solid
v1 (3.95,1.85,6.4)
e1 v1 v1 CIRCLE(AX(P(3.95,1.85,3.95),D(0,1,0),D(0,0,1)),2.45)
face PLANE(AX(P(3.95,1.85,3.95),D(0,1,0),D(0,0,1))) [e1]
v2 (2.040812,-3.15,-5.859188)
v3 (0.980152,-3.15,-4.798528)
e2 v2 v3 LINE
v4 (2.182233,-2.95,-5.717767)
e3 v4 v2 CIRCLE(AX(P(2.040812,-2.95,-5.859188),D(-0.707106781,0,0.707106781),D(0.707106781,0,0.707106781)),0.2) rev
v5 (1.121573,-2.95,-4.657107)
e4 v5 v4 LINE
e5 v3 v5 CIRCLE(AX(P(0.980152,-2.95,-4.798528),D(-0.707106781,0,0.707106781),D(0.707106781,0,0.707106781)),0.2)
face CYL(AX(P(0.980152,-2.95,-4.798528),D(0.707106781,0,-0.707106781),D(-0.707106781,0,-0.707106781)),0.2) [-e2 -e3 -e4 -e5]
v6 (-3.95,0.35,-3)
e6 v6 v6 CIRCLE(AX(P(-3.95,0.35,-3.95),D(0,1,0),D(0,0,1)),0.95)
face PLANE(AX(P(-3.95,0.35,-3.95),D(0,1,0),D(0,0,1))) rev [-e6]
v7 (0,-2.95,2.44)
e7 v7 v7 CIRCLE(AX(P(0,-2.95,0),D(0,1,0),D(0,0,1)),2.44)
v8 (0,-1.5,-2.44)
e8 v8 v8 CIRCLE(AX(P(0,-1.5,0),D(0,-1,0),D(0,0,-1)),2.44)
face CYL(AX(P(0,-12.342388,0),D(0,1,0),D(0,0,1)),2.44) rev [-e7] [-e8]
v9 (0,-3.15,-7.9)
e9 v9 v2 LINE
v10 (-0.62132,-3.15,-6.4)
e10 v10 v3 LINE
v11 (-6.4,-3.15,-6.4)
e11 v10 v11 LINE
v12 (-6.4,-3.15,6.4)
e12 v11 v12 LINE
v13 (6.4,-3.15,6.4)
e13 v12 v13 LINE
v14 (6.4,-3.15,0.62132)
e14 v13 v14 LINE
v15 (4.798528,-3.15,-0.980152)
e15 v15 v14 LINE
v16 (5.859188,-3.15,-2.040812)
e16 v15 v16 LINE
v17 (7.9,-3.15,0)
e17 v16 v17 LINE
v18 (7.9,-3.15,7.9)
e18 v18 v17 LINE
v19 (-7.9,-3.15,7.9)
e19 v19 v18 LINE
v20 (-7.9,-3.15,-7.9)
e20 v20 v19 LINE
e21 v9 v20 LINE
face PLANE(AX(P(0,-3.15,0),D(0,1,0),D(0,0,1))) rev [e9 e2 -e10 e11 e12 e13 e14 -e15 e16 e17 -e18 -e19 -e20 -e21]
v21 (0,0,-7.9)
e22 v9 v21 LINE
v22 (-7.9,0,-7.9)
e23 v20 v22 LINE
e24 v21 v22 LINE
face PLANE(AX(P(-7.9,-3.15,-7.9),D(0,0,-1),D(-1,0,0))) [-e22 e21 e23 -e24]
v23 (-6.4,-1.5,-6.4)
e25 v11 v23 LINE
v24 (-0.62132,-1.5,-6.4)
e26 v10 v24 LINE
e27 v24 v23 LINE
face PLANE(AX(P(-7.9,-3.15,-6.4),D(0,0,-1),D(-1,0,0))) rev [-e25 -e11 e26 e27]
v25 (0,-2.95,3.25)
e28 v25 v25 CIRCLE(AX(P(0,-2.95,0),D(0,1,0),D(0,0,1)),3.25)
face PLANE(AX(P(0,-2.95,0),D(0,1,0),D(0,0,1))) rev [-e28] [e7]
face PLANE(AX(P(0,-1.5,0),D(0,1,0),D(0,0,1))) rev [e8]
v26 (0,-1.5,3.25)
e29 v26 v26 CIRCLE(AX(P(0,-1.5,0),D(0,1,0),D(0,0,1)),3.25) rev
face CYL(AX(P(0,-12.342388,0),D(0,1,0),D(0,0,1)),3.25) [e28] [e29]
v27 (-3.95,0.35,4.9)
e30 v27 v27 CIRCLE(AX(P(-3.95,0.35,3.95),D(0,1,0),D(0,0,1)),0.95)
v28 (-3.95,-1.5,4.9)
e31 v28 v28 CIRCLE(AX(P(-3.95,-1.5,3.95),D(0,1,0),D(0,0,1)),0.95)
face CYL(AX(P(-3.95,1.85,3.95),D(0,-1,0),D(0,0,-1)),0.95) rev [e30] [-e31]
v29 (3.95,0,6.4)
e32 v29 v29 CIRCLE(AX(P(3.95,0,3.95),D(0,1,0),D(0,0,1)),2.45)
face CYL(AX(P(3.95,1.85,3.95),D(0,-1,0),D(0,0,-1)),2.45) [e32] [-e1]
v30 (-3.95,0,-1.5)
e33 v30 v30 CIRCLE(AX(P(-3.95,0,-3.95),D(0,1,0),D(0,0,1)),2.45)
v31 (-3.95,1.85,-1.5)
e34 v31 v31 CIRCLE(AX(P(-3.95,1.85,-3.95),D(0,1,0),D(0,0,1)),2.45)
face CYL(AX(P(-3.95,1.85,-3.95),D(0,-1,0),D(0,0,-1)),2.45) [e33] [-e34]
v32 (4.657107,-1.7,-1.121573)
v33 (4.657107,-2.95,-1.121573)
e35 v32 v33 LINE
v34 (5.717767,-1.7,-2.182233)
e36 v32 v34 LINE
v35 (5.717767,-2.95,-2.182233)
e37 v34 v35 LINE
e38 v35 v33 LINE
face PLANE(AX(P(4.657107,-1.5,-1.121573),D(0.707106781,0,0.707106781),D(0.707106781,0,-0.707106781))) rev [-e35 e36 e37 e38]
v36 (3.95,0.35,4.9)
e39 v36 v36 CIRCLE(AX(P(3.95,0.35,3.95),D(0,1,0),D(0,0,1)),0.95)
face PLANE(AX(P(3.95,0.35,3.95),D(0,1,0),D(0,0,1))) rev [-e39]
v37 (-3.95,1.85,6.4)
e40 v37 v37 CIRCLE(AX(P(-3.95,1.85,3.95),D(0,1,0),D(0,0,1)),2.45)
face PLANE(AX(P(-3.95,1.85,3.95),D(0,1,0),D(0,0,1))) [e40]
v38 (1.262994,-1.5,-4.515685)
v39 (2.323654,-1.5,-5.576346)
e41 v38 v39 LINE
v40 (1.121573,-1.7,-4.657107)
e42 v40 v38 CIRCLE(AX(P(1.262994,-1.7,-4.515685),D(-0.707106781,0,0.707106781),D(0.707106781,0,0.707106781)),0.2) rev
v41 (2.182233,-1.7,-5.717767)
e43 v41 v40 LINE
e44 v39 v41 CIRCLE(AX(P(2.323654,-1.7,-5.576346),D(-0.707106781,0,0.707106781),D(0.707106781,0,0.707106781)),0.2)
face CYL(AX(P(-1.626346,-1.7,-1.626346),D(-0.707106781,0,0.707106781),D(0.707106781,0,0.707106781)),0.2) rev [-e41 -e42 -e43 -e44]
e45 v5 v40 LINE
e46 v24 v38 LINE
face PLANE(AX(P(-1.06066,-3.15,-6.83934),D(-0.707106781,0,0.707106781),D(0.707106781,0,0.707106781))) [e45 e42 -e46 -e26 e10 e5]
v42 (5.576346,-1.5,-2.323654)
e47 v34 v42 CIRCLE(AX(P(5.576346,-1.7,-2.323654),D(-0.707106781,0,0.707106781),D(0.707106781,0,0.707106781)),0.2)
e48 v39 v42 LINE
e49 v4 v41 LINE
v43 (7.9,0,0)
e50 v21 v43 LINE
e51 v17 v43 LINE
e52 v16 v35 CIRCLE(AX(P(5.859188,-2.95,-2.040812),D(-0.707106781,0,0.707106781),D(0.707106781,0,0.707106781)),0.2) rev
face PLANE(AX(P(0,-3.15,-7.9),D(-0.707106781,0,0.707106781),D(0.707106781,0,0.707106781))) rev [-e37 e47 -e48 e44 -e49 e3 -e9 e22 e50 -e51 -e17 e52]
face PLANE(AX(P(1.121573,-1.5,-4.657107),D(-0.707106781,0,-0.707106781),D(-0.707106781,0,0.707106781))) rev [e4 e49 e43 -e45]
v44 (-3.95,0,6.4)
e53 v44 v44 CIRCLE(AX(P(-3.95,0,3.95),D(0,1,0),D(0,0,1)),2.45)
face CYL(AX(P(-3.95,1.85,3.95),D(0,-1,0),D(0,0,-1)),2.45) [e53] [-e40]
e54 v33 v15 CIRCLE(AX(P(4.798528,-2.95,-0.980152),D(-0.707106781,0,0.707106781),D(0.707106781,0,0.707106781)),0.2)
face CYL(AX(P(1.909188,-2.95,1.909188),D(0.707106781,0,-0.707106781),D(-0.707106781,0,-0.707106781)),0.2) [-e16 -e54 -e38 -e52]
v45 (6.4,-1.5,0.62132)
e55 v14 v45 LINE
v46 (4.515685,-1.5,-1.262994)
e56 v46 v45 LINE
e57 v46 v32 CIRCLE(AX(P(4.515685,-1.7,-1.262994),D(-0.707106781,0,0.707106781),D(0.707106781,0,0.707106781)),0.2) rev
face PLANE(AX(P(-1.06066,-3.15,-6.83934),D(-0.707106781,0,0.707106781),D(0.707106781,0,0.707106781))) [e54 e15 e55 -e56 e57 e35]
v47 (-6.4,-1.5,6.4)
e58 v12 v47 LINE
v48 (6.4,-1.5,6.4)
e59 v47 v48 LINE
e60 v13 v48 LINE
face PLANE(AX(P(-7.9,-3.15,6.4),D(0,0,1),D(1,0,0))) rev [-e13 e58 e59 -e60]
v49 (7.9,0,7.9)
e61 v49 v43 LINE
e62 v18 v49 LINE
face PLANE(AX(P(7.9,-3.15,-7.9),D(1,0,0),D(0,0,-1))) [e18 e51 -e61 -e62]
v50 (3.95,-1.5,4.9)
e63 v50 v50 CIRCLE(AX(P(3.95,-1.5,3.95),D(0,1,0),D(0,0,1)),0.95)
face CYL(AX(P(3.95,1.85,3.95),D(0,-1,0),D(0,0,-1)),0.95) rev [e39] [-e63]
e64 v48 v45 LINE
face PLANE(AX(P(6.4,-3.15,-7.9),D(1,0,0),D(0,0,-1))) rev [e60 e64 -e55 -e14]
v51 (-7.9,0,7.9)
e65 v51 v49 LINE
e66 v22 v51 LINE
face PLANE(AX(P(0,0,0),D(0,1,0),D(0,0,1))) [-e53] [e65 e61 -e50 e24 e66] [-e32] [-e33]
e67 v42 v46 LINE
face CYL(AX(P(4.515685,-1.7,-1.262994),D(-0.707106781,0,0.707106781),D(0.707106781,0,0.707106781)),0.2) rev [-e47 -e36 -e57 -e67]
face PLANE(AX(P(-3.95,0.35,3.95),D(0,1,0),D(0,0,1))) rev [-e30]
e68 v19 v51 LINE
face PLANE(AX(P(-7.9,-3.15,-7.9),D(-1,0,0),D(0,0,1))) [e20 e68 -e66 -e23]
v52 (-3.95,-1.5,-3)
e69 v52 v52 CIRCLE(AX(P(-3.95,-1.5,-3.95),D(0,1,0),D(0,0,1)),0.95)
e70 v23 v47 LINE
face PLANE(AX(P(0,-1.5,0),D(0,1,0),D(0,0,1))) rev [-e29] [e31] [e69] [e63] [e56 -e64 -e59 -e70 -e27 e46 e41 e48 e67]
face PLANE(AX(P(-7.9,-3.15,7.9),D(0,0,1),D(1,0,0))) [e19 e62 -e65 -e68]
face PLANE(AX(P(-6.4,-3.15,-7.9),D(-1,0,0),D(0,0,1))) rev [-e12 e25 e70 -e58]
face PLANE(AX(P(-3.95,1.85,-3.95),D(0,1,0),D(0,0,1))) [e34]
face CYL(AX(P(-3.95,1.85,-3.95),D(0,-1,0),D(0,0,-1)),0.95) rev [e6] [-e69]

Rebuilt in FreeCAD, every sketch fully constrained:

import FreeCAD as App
import Part
import Sketcher


def edges_at(feature, points):
    """Names of the edges that pass closest to the given points."""
    edges = feature.Shape.Edges
    near = lambda p: min(range(len(edges)), key=lambda i: edges[i].distToShape(Part.Vertex(*p))[0])
    return sorted({f"Edge{near(p) + 1}" for p in points})


def faces_at(feature, points):
    """Names of the faces that lie closest to the given points."""
    faces = feature.Shape.Faces
    near = lambda p: min(range(len(faces)), key=lambda i: faces[i].distToShape(Part.Vertex(*p))[0])
    return sorted({f"Face{near(p) + 1}" for p in points})

doc = App.newDocument("Part")
params = doc.addObject("Spreadsheet::Sheet", "Params")
for row, (alias, value) in enumerate([
    ("sketch1_width", "15.8 mm"),
    ("pad1_length", "3.15 mm"),
    ("sketch2_diameter", "4.9 mm"),
    ("pad2_length", "1.85 mm"),
    ("sketch3_width", "7.9 mm"),
    ("thickness_wall", "1.5 mm"),
    ("sketch4_width", "5 mm"),
    ("sketch4_height", "1.65 mm"),
    ("pocket2_length", "1.5 mm"),
    ("fillet_radius", "0.2 mm"),
    ("sketch5_diameter", "6.5 mm"),
    ("sketch5_diameter2", "4.88 mm"),
    ("pad3_length", "1.45 mm"),
], start=1):
    params.set(f"A{row}", alias)
    params.set(f"B{row}", "=" + value)
    params.setAlias(f"B{row}", alias)

body = doc.addObject("PartDesign::Body", "Body")

sketch1 = body.newObject("Sketcher::SketchObject", "Sketch")
sketch1.AttachmentSupport = (doc.getObject("XZ_Plane"), [""])
sketch1.MapMode = "FlatFace"
sketch1.addGeometry([
    Part.LineSegment(App.Vector(-8, -8, 0), App.Vector(-8, 8, 0)),
    Part.LineSegment(App.Vector(-8, 8, 0), App.Vector(8, 8, 0)),
    Part.LineSegment(App.Vector(8, 8, 0), App.Vector(8, -8, 0)),
    Part.LineSegment(App.Vector(8, -8, 0), App.Vector(-8, -8, 0)),
], False)
sketch1.addConstraint([
    Sketcher.Constraint("Coincident", 0, 2, 1, 1),
    Sketcher.Constraint("Coincident", 1, 2, 2, 1),
    Sketcher.Constraint("Coincident", 2, 2, 3, 1),
    Sketcher.Constraint("Coincident", 3, 2, 0, 1),
    Sketcher.Constraint("Vertical", 0),
    Sketcher.Constraint("Horizontal", 1),
    Sketcher.Constraint("Vertical", 2),
    Sketcher.Constraint("Horizontal", 3),
    Sketcher.Constraint("Symmetric", 0, 2, 2, 2, -1, 1),
    Sketcher.Constraint("Equal", 3, 0),
    Sketcher.Constraint("DistanceX", 1, 1, 1, 2, 15.8),
])
sketch1.setExpression("Constraints[10]", "Params.sketch1_width")
pad1 = body.newObject("PartDesign::Pad", "Pad")
pad1.Profile = sketch1
pad1.setExpression("Length", "Params.pad1_length")

sketch2 = body.newObject("Sketcher::SketchObject", "Sketch001")
sketch2.AttachmentSupport = (doc.getObject("XZ_Plane"), [""])
sketch2.MapMode = "FlatFace"
sketch2.addGeometry([
    Part.Circle(App.Vector(-4, -4, 0), App.Vector(0, 0, 1), 2.5),
    Part.Circle(App.Vector(-4, 4, 0), App.Vector(0, 0, 1), 2.5),
    Part.Circle(App.Vector(4, 4, 0), App.Vector(0, 0, 1), 2.5),
], False)
sketch2.addConstraint([
    Sketcher.Constraint("Equal", 0, 1),
    Sketcher.Constraint("Equal", 1, 2),
    Sketcher.Constraint("Symmetric", 0, 3, 2, 3, -1, 1),
    Sketcher.Constraint("Symmetric", 1, 3, 2, 3, -2),
    Sketcher.Constraint("Diameter", 0, 4.9),
    Sketcher.Constraint("DistanceY", 0, 3, 1, 3, 7.9),
    Sketcher.Constraint("DistanceX", 1, 3, 2, 3, 7.9),
])
sketch2.setExpression("Constraints[4]", "Params.sketch2_diameter")
pad2 = body.newObject("PartDesign::Pad", "Pad001")
pad2.Profile = sketch2
pad2.setExpression("Length", "Params.pad2_length")
pad2.Reversed = True

sketch3 = body.newObject("Sketcher::SketchObject", "Sketch002")
sketch3.AttachmentSupport = (doc.getObject("XZ_Plane"), [""])
sketch3.MapMode = "FlatFace"
sketch3.addGeometry([
    Part.LineSegment(App.Vector(0, -8, 0), App.Vector(8, 0, 0)),
    Part.LineSegment(App.Vector(8, 0, 0), App.Vector(8, -8, 0)),
    Part.LineSegment(App.Vector(8, -8, 0), App.Vector(0, -8, 0)),
], False)
sketch3.addConstraint([
    Sketcher.Constraint("Coincident", 0, 2, 1, 1),
    Sketcher.Constraint("Coincident", 1, 2, 2, 1),
    Sketcher.Constraint("Coincident", 2, 2, 0, 1),
    Sketcher.Constraint("Vertical", 1),
    Sketcher.Constraint("Horizontal", 2),
    Sketcher.Constraint("PointOnObject", 0, 2, -1),
    Sketcher.Constraint("PointOnObject", 2, 2, -2),
    Sketcher.Constraint("Equal", 2, 1),
    Sketcher.Constraint("DistanceX", 2, 2, 2, 1, 7.9),
])
sketch3.setExpression("Constraints[8]", "Params.sketch3_width")
pocket1 = body.newObject("PartDesign::Pocket", "Pocket")
pocket1.Profile = sketch3
pocket1.Type = "ThroughAll"
pocket1.Midplane = True
doc.recompute()

thickness = body.newObject("PartDesign::Thickness", "Thickness")
thickness.Base = (pocket1, faces_at(pocket1, [(0, -3.15, 0)]))
thickness.setExpression("Value", "Params.thickness_wall")
thickness.Reversed = True
thickness.Join = "Intersection"

sketch4 = body.newObject("Sketcher::SketchObject", "Sketch003")
sketch4.Placement = App.Placement(App.Vector(3.95, 0, -3.95), App.Rotation(App.Vector(-0.707106781, 0, -0.707106781), App.Vector(0, 0.999999999, 0), App.Vector(0.707106781, 0, -0.707106781), "ZXY"))
sketch4.addGeometry([
    Part.LineSegment(App.Vector(-2.5, -1.5, 0), App.Vector(-2.5, -3.1, 0)),
    Part.LineSegment(App.Vector(-2.5, -3.1, 0), App.Vector(2.5, -3.1, 0)),
    Part.LineSegment(App.Vector(2.5, -3.1, 0), App.Vector(2.5, -1.5, 0)),
    Part.LineSegment(App.Vector(2.5, -1.5, 0), App.Vector(-2.5, -1.5, 0)),
], False)
sketch4.addConstraint([
    Sketcher.Constraint("Coincident", 0, 2, 1, 1),
    Sketcher.Constraint("Coincident", 1, 2, 2, 1),
    Sketcher.Constraint("Coincident", 2, 2, 3, 1),
    Sketcher.Constraint("Coincident", 3, 2, 0, 1),
    Sketcher.Constraint("Vertical", 0),
    Sketcher.Constraint("Horizontal", 1),
    Sketcher.Constraint("Vertical", 2),
    Sketcher.Constraint("Horizontal", 3),
    Sketcher.Constraint("DistanceX", 1, 1, 1, 2, 5.0),
    Sketcher.Constraint("DistanceY", 0, 2, 0, 1, 1.65),
    Sketcher.Constraint("DistanceX", 0, 2, -1, 1, 2.5),
    Sketcher.Constraint("DistanceY", 2, 2, -1, 1, 1.5),
])
sketch4.setExpression("Constraints[8]", "Params.sketch4_width")
sketch4.setExpression("Constraints[9]", "Params.sketch4_height")
pocket2 = body.newObject("PartDesign::Pocket", "Pocket001")
pocket2.Profile = sketch4
pocket2.setExpression("Length", "Params.pocket2_length")
doc.recompute()

fillet = body.newObject("PartDesign::Fillet", "Fillet")
fillet.Base = (pocket2, edges_at(pocket2, [
    (5.187, -3.15, -1.652),
    (5.187, -1.5, -1.652),
    (1.652, -1.5, -5.187),
    (1.652, -3.15, -5.187),
]))
fillet.setExpression("Radius", "Params.fillet_radius")

sketch5 = body.newObject("Sketcher::SketchObject", "Sketch004")
sketch5.AttachmentSupport = (doc.getObject("XZ_Plane"), [""])
sketch5.MapMode = "FlatFace"
sketch5.AttachmentOffset = App.Placement(App.Vector(0, 0, 1.5), App.Rotation())
sketch5.addGeometry([
    Part.Circle(App.Vector(0, 0, 0), App.Vector(0, 0, 1), 3.2),
    Part.Circle(App.Vector(0, 0, 0), App.Vector(0, 0, 1), 2.4),
], False)
sketch5.addConstraint([
    Sketcher.Constraint("Coincident", 0, 3, -1, 1),
    Sketcher.Constraint("Coincident", 1, 3, -1, 1),
    Sketcher.Constraint("Diameter", 0, 6.5),
    Sketcher.Constraint("Diameter", 1, 4.88),
])
sketch5.setExpression("Constraints[2]", "Params.sketch5_diameter")
sketch5.setExpression("Constraints[3]", "Params.sketch5_diameter2")
pad3 = body.newObject("PartDesign::Pad", "Pad002")
pad3.Profile = sketch5
pad3.setExpression("Length", "Params.pad3_length")

doc.recompute()
